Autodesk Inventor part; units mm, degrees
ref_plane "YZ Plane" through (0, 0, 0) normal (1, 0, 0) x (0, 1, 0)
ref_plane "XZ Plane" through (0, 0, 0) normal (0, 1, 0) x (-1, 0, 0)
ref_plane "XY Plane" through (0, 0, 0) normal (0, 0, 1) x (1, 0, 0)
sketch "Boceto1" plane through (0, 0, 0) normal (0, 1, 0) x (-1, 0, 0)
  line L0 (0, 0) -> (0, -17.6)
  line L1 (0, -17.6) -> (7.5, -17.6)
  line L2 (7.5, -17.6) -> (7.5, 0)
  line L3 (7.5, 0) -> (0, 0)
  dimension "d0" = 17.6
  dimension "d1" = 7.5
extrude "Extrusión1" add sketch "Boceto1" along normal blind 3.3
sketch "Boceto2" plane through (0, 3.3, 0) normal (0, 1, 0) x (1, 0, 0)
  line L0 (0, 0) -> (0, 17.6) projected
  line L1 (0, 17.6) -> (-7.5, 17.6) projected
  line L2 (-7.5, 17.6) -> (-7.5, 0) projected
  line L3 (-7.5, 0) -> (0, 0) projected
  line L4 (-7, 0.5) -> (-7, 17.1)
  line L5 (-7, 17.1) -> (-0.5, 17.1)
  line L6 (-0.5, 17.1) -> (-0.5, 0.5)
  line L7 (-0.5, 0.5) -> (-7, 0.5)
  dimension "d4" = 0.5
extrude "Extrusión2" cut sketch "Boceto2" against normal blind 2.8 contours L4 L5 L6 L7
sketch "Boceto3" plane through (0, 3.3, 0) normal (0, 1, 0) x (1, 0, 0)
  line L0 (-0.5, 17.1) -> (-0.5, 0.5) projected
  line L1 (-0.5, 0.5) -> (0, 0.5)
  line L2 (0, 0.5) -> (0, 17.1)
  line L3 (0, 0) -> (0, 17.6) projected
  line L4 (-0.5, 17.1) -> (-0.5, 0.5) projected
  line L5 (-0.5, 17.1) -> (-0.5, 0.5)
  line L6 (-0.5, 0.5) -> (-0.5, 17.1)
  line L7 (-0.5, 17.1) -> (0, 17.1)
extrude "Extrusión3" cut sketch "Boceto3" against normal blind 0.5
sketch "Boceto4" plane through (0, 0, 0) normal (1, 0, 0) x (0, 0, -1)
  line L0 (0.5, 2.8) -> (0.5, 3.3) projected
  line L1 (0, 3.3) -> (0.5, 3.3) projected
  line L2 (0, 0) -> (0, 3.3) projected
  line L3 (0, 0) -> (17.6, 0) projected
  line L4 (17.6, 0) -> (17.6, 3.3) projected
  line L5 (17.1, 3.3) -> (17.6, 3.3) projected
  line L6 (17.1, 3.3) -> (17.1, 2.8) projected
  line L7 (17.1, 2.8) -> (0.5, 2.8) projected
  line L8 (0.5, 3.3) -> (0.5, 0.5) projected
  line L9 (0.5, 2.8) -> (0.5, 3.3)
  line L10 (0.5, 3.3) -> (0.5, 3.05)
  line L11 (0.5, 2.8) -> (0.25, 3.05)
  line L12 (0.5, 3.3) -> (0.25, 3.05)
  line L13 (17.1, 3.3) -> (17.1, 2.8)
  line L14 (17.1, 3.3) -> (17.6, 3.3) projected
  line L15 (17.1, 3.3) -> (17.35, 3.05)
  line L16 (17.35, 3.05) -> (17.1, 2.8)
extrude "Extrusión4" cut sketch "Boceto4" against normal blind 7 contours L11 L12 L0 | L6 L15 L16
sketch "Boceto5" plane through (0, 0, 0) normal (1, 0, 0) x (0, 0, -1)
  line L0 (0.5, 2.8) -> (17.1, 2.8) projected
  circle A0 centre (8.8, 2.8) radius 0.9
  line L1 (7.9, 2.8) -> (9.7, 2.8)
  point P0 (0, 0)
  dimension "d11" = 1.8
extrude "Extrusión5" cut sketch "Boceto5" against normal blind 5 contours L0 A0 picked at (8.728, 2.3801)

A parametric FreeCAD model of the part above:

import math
import FreeCAD as App
import Part
import Sketcher

V = App.Vector

doc = App.newDocument("Part")
body = doc.addObject("PartDesign::Body", "Body")

# Sketch on XZ plane
sketch1 = body.newObject("Sketcher::SketchObject", "Sketch")
sketch1.AttachmentSupport = (doc.getObject("XZ_Plane"), [""])
sketch1.MapMode = "FlatFace"
sketch1.addGeometry(Part.LineSegment(V(-7.5, 0, 0), V(0, 0, 0)), False)
sketch1.addGeometry(Part.LineSegment(V(0, 0, 0), V(0, -17.6, 0)), False)
sketch1.addGeometry(Part.LineSegment(V(0, -17.6, 0), V(-7.5, -17.6, 0)), False)
sketch1.addGeometry(Part.LineSegment(V(-7.5, -17.6, 0), V(-7.5, 0, 0)), False)
sketch1.addConstraint(Sketcher.Constraint("Coincident", 0, 2, 1, 1))
sketch1.addConstraint(Sketcher.Constraint("Coincident", 1, 2, 2, 1))
sketch1.addConstraint(Sketcher.Constraint("Coincident", 2, 2, 3, 1))
sketch1.addConstraint(Sketcher.Constraint("Coincident", 3, 2, 0, 1))
sketch1.addConstraint(Sketcher.Constraint("Horizontal", 0))
sketch1.addConstraint(Sketcher.Constraint("Vertical", 1))
sketch1.addConstraint(Sketcher.Constraint("Horizontal", 2))
sketch1.addConstraint(Sketcher.Constraint("Vertical", 3))
sketch1.addConstraint(Sketcher.Constraint("Coincident", 0, 2, -1, 1))
sketch1.addConstraint(Sketcher.Constraint("DistanceX", 0, 1, 0, 2, 7.5))
sketch1.addConstraint(Sketcher.Constraint("DistanceY", 1, 2, 1, 1, 17.6))
pad1 = body.newObject("PartDesign::Pad", "Pad")
pad1.Profile = sketch1
pad1.Length = 3.3
pad1.Reversed = True

# Sketch on XZ plane
sketch2 = body.newObject("Sketcher::SketchObject", "Sketch001")
sketch2.AttachmentSupport = (doc.getObject("XZ_Plane"), [""])
sketch2.MapMode = "FlatFace"
sketch2.AttachmentOffset = App.Placement(V(0, 0, -3.3), App.Rotation())
sketch2.addGeometry(Part.LineSegment(V(-7, -17.1, 0), V(-7, -0.5, 0)), False)
sketch2.addGeometry(Part.LineSegment(V(-7, -0.5, 0), V(-0.5, -0.5, 0)), False)
sketch2.addGeometry(Part.LineSegment(V(-0.5, -0.5, 0), V(-0.5, -17.1, 0)), False)
sketch2.addGeometry(Part.LineSegment(V(-0.5, -17.1, 0), V(-7, -17.1, 0)), False)
sketch2.addConstraint(Sketcher.Constraint("Coincident", 0, 2, 1, 1))
sketch2.addConstraint(Sketcher.Constraint("Coincident", 1, 2, 2, 1))
sketch2.addConstraint(Sketcher.Constraint("Coincident", 2, 2, 3, 1))
sketch2.addConstraint(Sketcher.Constraint("Coincident", 3, 2, 0, 1))
sketch2.addConstraint(Sketcher.Constraint("Vertical", 0))
sketch2.addConstraint(Sketcher.Constraint("Horizontal", 1))
sketch2.addConstraint(Sketcher.Constraint("Vertical", 2))
sketch2.addConstraint(Sketcher.Constraint("Horizontal", 3))
sketch2.addConstraint(Sketcher.Constraint("DistanceY", 0, 2, -1, 1, 0.5))
sketch2.addConstraint(Sketcher.Constraint("DistanceX", 1, 2, -1, 1, 0.5))
sketch2.addConstraint(Sketcher.Constraint("DistanceX", 1, 1, 1, 2, 6.5))
sketch2.addConstraint(Sketcher.Constraint("DistanceY", 0, 1, 0, 2, 16.6))
pocket1 = body.newObject("PartDesign::Pocket", "Pocket")
pocket1.Profile = sketch2
pocket1.Length = 2.8
pocket1.Reversed = True

# Sketch on XZ plane
sketch3 = body.newObject("Sketcher::SketchObject", "Sketch002")
sketch3.AttachmentSupport = (doc.getObject("XZ_Plane"), [""])
sketch3.MapMode = "FlatFace"
sketch3.AttachmentOffset = App.Placement(V(0, 0, -3.3), App.Rotation())
sketch3.addGeometry(Part.LineSegment(V(0, -17.1, 0), V(-0.5, -17.1, 0)), False)
sketch3.addGeometry(Part.LineSegment(V(-0.5, -17.1, 0), V(-0.5, -0.5, 0)), False)
sketch3.addGeometry(Part.LineSegment(V(-0.5, -0.5, 0), V(0, -0.5, 0)), False)
sketch3.addGeometry(Part.LineSegment(V(0, -0.5, 0), V(0, -17.1, 0)), False)
sketch3.addConstraint(Sketcher.Constraint("Coincident", 0, 2, 1, 1))
sketch3.addConstraint(Sketcher.Constraint("Coincident", 1, 2, 2, 1))
sketch3.addConstraint(Sketcher.Constraint("Coincident", 2, 2, 3, 1))
sketch3.addConstraint(Sketcher.Constraint("Coincident", 3, 2, 0, 1))
sketch3.addConstraint(Sketcher.Constraint("Horizontal", 0))
sketch3.addConstraint(Sketcher.Constraint("Vertical", 1))
sketch3.addConstraint(Sketcher.Constraint("Horizontal", 2))
sketch3.addConstraint(Sketcher.Constraint("Vertical", 3))
sketch3.addConstraint(Sketcher.Constraint("PointOnObject", 2, 2, -2))
sketch3.addConstraint(Sketcher.Constraint("DistanceX", 0, 2, 0, 1, 0.5))
sketch3.addConstraint(Sketcher.Constraint("DistanceY", 1, 1, 1, 2, 16.6))
sketch3.addConstraint(Sketcher.Constraint("DistanceY", 0, 2, -1, 1, 17.1))
pocket2 = body.newObject("PartDesign::Pocket", "Pocket001")
pocket2.Profile = sketch3
pocket2.Length = 0.5
pocket2.Reversed = True

# Sketch on YZ plane
sketch4 = body.newObject("Sketcher::SketchObject", "Sketch003")
sketch4.AttachmentSupport = (doc.getObject("YZ_Plane"), [""])
sketch4.MapMode = "FlatFace"
sketch4.addGeometry(Part.LineSegment(V(3.05, -0.25, 0), V(2.8, -0.5, 0)), False)
sketch4.addGeometry(Part.LineSegment(V(2.8, -0.5, 0), V(3.3, -0.5, 0)), False)
sketch4.addGeometry(Part.LineSegment(V(3.3, -0.5, 0), V(3.05, -0.25, 0)), False)
sketch4.addGeometry(Part.LineSegment(V(3.3, -17.1, 0), V(2.8, -17.1, 0)), False)
sketch4.addGeometry(Part.LineSegment(V(2.8, -17.1, 0), V(3.05, -17.35, 0)), False)
sketch4.addGeometry(Part.LineSegment(V(3.05, -17.35, 0), V(3.3, -17.1, 0)), False)
sketch4.addConstraint(Sketcher.Constraint("Coincident", 0, 2, 1, 1))
sketch4.addConstraint(Sketcher.Constraint("Coincident", 1, 2, 2, 1))
sketch4.addConstraint(Sketcher.Constraint("Coincident", 2, 2, 0, 1))
sketch4.addConstraint(Sketcher.Constraint("Coincident", 3, 2, 4, 1))
sketch4.addConstraint(Sketcher.Constraint("Coincident", 4, 2, 5, 1))
sketch4.addConstraint(Sketcher.Constraint("Coincident", 5, 2, 3, 1))
sketch4.addConstraint(Sketcher.Constraint("Horizontal", 1))
sketch4.addConstraint(Sketcher.Constraint("Horizontal", 3))
sketch4.addConstraint(Sketcher.Constraint("Perpendicular", 0, 2))
sketch4.addConstraint(Sketcher.Constraint("Parallel", 2, 4))
sketch4.addConstraint(Sketcher.Constraint("Perpendicular", 4, 5))
sketch4.addConstraint(Sketcher.Constraint("Vertical", 0, 2, 3, 2))
sketch4.addConstraint(Sketcher.Constraint("Vertical", 2, 2, 4, 2))
sketch4.addConstraint(Sketcher.Constraint("Vertical", 1, 2, 5, 2))
sketch4.addConstraint(Sketcher.Constraint("DistanceX", 1, 1, 1, 2, 0.5))
sketch4.addConstraint(Sketcher.Constraint("DistanceX", -1, 1, 0, 2, 2.8))
sketch4.addConstraint(Sketcher.Constraint("DistanceY", 0, 2, -1, 1, 0.5))
sketch4.addConstraint(Sketcher.Constraint("DistanceY", 3, 2, -1, 1, 17.1))
pocket3 = body.newObject("PartDesign::Pocket", "Pocket002")
pocket3.Profile = sketch4
pocket3.Length = 7

# Sketch on YZ plane
sketch5 = body.newObject("Sketcher::SketchObject", "Sketch004")
sketch5.AttachmentSupport = (doc.getObject("YZ_Plane"), [""])
sketch5.MapMode = "FlatFace"
sketch5.addGeometry(Part.LineSegment(V(2.8, -9.7, 0), V(2.8, -7.9, 0)), False)
sketch5.addGeometry(Part.ArcOfCircle(Part.Circle(V(2.8, -8.8, 0), V(0, 0, 1), 0.9), math.radians(90), math.radians(270)), False)
sketch5.addConstraint(Sketcher.Constraint("Coincident", 0, 1, 1, 2))
sketch5.addConstraint(Sketcher.Constraint("Coincident", 1, 1, 0, 2))
sketch5.addConstraint(Sketcher.Constraint("Vertical", 0))
sketch5.addConstraint(Sketcher.Constraint("Vertical", 1, 3, 0, 1))
sketch5.addConstraint(Sketcher.Constraint("Radius", 1, 0.9))
sketch5.addConstraint(Sketcher.Constraint("DistanceX", -1, 1, 1, 3, 2.8))
sketch5.addConstraint(Sketcher.Constraint("DistanceY", 1, 3, -1, 1, 8.8))
pocket4 = body.newObject("PartDesign::Pocket", "Pocket003")
pocket4.Profile = sketch5
pocket4.Length = 5

doc.recompute()
